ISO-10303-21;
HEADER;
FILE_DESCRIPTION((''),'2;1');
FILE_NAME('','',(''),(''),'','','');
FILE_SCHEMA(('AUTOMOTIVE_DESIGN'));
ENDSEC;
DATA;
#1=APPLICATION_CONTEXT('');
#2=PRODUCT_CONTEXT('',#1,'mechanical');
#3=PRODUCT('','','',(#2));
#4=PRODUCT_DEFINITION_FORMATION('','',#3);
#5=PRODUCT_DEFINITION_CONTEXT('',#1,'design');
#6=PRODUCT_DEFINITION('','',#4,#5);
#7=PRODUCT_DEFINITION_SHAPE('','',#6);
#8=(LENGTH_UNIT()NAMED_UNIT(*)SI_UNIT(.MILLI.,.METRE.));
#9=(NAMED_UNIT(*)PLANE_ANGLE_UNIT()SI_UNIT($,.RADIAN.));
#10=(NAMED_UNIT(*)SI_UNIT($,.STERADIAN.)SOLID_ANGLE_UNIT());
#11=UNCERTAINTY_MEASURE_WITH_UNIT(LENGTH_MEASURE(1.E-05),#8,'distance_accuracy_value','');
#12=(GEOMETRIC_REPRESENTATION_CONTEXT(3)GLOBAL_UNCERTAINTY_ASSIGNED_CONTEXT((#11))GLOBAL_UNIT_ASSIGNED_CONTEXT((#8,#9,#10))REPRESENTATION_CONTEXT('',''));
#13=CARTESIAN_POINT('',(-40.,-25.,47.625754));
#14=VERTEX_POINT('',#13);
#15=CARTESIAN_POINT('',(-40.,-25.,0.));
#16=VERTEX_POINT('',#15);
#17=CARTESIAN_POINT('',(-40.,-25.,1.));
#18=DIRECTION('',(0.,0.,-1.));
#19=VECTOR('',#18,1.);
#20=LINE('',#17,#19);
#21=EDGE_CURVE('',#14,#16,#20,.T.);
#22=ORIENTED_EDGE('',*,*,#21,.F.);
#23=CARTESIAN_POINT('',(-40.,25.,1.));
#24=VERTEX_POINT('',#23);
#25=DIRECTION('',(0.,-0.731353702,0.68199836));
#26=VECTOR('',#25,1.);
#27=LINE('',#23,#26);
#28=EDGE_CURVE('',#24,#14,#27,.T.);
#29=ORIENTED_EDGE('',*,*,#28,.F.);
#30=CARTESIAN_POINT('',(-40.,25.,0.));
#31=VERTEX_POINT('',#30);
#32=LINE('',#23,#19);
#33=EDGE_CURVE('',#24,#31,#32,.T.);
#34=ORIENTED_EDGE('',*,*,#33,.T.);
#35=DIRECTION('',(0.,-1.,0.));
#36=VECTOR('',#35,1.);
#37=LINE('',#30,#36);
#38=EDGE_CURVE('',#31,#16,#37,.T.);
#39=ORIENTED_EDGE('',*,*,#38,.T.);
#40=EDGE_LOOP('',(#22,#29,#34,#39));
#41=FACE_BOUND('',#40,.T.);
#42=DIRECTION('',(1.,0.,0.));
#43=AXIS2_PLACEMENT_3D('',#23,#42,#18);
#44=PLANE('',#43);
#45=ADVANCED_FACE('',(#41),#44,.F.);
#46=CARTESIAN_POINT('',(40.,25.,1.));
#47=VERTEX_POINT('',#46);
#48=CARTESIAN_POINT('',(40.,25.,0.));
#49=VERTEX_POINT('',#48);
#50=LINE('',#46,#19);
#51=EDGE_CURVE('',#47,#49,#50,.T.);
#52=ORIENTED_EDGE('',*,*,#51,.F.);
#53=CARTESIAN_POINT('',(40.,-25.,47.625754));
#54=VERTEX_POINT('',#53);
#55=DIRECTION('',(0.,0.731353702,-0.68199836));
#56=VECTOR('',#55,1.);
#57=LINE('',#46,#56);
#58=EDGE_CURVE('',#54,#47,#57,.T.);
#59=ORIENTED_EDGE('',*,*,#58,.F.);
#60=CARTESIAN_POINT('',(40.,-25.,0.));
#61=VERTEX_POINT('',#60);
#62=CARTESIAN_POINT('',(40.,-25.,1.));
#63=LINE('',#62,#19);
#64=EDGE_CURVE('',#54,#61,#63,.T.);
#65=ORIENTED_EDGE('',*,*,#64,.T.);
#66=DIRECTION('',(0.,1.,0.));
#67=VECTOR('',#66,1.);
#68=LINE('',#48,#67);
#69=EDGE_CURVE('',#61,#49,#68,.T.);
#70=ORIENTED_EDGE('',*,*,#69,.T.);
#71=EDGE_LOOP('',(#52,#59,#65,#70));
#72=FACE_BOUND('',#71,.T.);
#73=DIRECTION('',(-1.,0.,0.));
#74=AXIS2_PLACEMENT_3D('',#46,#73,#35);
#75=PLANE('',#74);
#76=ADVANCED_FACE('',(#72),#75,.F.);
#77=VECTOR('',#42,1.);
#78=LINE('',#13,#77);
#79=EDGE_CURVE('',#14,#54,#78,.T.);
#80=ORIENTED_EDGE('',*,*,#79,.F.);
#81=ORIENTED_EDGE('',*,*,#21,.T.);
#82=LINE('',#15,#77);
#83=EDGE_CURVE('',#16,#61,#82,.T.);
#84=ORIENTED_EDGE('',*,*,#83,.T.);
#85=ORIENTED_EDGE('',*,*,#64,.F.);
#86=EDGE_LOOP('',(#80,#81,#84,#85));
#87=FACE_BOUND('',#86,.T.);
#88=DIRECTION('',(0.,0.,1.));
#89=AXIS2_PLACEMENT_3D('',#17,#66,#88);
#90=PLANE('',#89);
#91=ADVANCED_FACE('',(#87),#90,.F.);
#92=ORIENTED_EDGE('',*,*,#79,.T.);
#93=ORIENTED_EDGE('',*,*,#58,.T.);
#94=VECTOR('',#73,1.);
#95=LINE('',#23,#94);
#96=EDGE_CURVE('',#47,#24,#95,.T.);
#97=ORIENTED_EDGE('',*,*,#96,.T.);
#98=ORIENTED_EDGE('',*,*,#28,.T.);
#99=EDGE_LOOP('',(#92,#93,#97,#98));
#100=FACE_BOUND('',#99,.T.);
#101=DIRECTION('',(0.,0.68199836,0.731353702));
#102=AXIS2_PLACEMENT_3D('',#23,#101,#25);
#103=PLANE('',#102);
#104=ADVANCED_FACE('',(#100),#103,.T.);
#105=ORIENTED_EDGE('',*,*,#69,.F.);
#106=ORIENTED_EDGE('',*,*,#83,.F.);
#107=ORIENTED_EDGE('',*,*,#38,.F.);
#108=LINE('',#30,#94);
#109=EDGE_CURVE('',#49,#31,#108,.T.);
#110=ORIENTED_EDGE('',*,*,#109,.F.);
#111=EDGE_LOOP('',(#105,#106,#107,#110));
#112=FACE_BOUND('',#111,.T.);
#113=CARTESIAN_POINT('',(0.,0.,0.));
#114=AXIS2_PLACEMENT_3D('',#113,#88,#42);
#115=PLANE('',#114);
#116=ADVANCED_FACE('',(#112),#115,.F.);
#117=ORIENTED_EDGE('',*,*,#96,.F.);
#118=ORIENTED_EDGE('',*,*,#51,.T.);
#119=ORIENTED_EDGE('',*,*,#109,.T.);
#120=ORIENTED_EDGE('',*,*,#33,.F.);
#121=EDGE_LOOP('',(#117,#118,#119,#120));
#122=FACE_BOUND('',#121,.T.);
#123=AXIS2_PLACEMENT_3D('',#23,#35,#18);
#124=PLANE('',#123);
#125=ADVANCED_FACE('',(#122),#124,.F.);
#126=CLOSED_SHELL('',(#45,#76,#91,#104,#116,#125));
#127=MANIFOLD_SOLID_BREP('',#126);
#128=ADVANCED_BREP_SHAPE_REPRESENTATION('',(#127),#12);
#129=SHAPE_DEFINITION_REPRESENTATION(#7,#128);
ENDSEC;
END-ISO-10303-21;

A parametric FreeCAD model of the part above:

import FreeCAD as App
import Part
import Sketcher
Q = App.Units.Quantity


def faces_at(feature, points):
    """Names of the faces that lie closest to the given points."""
    faces = feature.Shape.Faces
    near = lambda p: min(range(len(faces)), key=lambda i: faces[i].distToShape(Part.Vertex(*p))[0])
    return sorted({f"Face{near(p) + 1}" for p in points})

doc = App.newDocument("Part")
params = doc.addObject("Spreadsheet::Sheet", "Params")
for row, (alias, value) in enumerate([
    ("sketch1_width", "80 mm"),
    ("sketch1_height", "50 mm"),
    ("pad1_length", "1 mm"),
    ("draft_angle", "43 deg"),
], start=1):
    params.set(f"A{row}", alias)
    params.set(f"B{row}", "=" + value)
    params.setAlias(f"B{row}", alias)

body = doc.addObject("PartDesign::Body", "Body")

sketch1 = body.newObject("Sketcher::SketchObject", "Sketch")
sketch1.AttachmentSupport = (doc.getObject("XY_Plane"), [""])
sketch1.MapMode = "FlatFace"
sketch1.addGeometry([
    Part.LineSegment(App.Vector(-40, 25, 0), App.Vector(-40, -25, 0)),
    Part.LineSegment(App.Vector(-40, -25, 0), App.Vector(40, -25, 0)),
    Part.LineSegment(App.Vector(40, -25, 0), App.Vector(40, 25, 0)),
    Part.LineSegment(App.Vector(40, 25, 0), App.Vector(-40, 25, 0)),
], False)
sketch1.addConstraint([
    Sketcher.Constraint("Coincident", 0, 2, 1, 1),
    Sketcher.Constraint("Coincident", 1, 2, 2, 1),
    Sketcher.Constraint("Coincident", 2, 2, 3, 1),
    Sketcher.Constraint("Coincident", 3, 2, 0, 1),
    Sketcher.Constraint("Vertical", 0),
    Sketcher.Constraint("Horizontal", 1),
    Sketcher.Constraint("Vertical", 2),
    Sketcher.Constraint("Horizontal", 3),
    Sketcher.Constraint("Symmetric", 0, 2, 2, 2, -1, 1),
    Sketcher.Constraint("DistanceX", 1, 1, 1, 2, Q("80 mm")),
    Sketcher.Constraint("DistanceY", 0, 2, 0, 1, Q("50 mm")),
])
sketch1.setExpression("Constraints[9]", "Params.sketch1_width")
sketch1.setExpression("Constraints[10]", "Params.sketch1_height")
pad1 = body.newObject("PartDesign::Pad", "Pad")
pad1.Profile = sketch1
pad1.setExpression("Length", "Params.pad1_length")
doc.recompute()

datumplane = body.newObject("PartDesign::Plane", "DatumPlane")
datumplane.AttachmentSupport = (doc.getObject("XZ_Plane"), [""])
datumplane.MapMode = "FlatFace"
datumplane.AttachmentOffset = App.Placement(App.Vector(0, 0, -25), App.Rotation())
draft = body.newObject("PartDesign::Draft", "Draft")
draft.Base = (pad1, faces_at(pad1, [(0, 0, 1)]))
draft.NeutralPlane = (datumplane, [""])
draft.setExpression("Angle", "Params.draft_angle")
draft.Reversed = True

doc.recompute()
